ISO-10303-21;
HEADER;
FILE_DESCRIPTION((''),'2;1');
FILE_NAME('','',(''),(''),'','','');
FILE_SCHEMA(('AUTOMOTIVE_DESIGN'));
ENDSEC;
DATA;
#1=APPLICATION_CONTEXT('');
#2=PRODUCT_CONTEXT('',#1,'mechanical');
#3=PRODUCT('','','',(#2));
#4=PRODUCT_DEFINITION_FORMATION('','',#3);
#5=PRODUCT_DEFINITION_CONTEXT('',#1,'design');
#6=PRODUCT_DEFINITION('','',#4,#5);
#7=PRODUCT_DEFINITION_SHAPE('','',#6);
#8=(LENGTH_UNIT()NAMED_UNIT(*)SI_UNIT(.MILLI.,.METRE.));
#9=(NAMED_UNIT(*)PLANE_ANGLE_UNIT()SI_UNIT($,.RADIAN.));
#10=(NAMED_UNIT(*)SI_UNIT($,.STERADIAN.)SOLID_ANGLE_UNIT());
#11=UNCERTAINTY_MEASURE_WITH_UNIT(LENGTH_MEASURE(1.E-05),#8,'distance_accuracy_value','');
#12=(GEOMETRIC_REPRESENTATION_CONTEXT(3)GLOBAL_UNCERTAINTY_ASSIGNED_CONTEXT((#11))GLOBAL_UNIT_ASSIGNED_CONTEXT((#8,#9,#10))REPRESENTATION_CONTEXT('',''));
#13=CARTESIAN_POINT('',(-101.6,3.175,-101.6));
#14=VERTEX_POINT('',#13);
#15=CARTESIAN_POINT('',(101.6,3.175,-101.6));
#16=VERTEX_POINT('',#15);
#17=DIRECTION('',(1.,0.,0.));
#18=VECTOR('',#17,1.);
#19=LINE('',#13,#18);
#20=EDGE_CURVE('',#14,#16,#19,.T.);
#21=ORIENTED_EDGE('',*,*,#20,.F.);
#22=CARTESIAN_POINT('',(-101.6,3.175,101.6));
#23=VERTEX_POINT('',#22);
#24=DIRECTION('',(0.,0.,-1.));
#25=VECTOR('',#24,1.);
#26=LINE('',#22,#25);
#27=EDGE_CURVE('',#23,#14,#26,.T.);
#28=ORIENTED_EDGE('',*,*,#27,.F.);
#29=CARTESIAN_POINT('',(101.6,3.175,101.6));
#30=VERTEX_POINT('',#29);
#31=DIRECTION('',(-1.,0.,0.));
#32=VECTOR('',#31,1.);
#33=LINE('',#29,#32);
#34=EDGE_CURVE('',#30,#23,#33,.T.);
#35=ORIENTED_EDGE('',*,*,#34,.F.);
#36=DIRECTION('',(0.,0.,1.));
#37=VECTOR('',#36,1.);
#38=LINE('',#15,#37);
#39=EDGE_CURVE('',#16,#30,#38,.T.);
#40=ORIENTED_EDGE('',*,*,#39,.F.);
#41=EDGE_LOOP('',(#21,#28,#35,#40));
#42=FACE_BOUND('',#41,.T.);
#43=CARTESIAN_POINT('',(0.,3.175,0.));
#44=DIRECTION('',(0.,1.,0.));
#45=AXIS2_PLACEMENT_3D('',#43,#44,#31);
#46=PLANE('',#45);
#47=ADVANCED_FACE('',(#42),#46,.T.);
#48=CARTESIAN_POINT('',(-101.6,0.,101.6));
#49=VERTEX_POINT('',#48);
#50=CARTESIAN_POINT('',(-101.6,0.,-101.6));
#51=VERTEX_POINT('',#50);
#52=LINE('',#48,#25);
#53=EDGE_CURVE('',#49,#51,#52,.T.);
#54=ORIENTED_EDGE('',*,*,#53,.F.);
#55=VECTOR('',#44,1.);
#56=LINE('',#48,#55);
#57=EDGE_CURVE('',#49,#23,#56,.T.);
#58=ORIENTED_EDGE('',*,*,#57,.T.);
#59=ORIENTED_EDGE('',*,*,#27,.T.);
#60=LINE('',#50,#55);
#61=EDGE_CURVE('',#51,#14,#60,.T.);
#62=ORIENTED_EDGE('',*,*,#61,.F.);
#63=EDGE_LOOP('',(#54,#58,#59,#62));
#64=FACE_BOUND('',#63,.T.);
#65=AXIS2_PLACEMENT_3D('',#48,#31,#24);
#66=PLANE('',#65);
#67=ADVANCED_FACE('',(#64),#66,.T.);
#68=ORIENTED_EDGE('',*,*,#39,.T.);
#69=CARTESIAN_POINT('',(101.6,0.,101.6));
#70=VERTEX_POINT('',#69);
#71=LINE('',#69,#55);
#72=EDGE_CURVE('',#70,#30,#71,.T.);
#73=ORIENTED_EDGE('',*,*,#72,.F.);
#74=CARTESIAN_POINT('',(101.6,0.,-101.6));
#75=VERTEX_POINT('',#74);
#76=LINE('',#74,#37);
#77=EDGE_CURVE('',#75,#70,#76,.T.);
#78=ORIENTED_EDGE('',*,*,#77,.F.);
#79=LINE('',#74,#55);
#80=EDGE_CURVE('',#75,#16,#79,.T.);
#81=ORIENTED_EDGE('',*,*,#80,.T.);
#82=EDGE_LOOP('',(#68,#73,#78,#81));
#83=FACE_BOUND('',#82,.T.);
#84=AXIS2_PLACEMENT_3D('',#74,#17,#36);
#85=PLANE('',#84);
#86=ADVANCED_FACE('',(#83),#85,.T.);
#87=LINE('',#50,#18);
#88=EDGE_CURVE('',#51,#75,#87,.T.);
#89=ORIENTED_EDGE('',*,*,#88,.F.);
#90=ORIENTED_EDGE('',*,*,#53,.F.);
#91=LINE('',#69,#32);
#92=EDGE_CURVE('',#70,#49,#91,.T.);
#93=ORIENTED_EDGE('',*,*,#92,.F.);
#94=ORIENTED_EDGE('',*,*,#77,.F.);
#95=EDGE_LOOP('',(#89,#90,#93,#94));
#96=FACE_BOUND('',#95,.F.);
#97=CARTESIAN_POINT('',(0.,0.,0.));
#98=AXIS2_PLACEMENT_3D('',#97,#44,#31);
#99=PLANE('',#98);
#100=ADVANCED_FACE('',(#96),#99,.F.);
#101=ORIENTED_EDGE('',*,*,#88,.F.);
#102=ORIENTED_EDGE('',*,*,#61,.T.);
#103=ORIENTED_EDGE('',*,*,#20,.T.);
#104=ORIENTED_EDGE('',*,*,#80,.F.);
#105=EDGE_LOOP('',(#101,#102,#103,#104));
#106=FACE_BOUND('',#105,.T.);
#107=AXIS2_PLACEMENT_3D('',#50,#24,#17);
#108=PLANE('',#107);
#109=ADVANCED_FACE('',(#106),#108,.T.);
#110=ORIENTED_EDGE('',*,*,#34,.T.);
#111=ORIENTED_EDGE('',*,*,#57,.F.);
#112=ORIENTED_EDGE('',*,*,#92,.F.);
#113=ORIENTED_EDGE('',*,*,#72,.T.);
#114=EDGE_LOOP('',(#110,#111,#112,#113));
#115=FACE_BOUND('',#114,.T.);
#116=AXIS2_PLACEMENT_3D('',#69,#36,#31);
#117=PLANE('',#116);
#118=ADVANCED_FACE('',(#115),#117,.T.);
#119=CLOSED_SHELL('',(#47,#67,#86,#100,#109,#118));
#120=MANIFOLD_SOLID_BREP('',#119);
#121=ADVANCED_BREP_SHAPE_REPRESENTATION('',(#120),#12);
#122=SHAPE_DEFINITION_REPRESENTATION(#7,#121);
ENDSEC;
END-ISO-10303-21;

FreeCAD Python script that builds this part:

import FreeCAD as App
import Part
import Sketcher
Q = App.Units.Quantity


def add_polygon(sketch, points):
    """Adds a closed chain of lines whose ends are joined by coincident constraints."""
    first, n = sketch.GeometryCount, len(points)
    for a, b in zip(points, points[1:] + points[:1]):
        sketch.addGeometry(Part.LineSegment(App.Vector(*a, 0), App.Vector(*b, 0)), False)
    for i in range(n):
        sketch.addConstraint(Sketcher.Constraint("Coincident", first + i, 2, first + (i + 1) % n, 1))

doc = App.newDocument("Part")
body = doc.addObject("PartDesign::Body", "Body")

# Sketch on XZ plane
sketch1 = doc.addObject("Sketcher::SketchObject", "Sketch")
body.addObject(sketch1)
sketch1.AttachmentSupport = (doc.XZ_Plane, [""])
sketch1.MapMode = "FlatFace"
add_polygon(sketch1, [(-101.6, 101.6), (101.6, 101.6), (101.6, -101.6), (-101.6, -101.6)])  # lines 0-3
sketch1.addConstraint([
    Sketcher.Constraint("Horizontal", 0),
    Sketcher.Constraint("Vertical", 1),
    Sketcher.Constraint("Horizontal", 2),
    Sketcher.Constraint("Vertical", 3),
    Sketcher.Constraint("Symmetric", 0, 2, 2, 2, -1, 1),
    Sketcher.Constraint("Equal", 2, 1),
    Sketcher.Constraint("DistanceX", 0, 1, 0, 2, Q("8 in")),
])
pad1 = doc.addObject("PartDesign::Pad", "Pad")
body.addObject(pad1)
pad1.Profile = sketch1
pad1.Length = Q("0.125 in")
pad1.Reversed = True

doc.recompute()
